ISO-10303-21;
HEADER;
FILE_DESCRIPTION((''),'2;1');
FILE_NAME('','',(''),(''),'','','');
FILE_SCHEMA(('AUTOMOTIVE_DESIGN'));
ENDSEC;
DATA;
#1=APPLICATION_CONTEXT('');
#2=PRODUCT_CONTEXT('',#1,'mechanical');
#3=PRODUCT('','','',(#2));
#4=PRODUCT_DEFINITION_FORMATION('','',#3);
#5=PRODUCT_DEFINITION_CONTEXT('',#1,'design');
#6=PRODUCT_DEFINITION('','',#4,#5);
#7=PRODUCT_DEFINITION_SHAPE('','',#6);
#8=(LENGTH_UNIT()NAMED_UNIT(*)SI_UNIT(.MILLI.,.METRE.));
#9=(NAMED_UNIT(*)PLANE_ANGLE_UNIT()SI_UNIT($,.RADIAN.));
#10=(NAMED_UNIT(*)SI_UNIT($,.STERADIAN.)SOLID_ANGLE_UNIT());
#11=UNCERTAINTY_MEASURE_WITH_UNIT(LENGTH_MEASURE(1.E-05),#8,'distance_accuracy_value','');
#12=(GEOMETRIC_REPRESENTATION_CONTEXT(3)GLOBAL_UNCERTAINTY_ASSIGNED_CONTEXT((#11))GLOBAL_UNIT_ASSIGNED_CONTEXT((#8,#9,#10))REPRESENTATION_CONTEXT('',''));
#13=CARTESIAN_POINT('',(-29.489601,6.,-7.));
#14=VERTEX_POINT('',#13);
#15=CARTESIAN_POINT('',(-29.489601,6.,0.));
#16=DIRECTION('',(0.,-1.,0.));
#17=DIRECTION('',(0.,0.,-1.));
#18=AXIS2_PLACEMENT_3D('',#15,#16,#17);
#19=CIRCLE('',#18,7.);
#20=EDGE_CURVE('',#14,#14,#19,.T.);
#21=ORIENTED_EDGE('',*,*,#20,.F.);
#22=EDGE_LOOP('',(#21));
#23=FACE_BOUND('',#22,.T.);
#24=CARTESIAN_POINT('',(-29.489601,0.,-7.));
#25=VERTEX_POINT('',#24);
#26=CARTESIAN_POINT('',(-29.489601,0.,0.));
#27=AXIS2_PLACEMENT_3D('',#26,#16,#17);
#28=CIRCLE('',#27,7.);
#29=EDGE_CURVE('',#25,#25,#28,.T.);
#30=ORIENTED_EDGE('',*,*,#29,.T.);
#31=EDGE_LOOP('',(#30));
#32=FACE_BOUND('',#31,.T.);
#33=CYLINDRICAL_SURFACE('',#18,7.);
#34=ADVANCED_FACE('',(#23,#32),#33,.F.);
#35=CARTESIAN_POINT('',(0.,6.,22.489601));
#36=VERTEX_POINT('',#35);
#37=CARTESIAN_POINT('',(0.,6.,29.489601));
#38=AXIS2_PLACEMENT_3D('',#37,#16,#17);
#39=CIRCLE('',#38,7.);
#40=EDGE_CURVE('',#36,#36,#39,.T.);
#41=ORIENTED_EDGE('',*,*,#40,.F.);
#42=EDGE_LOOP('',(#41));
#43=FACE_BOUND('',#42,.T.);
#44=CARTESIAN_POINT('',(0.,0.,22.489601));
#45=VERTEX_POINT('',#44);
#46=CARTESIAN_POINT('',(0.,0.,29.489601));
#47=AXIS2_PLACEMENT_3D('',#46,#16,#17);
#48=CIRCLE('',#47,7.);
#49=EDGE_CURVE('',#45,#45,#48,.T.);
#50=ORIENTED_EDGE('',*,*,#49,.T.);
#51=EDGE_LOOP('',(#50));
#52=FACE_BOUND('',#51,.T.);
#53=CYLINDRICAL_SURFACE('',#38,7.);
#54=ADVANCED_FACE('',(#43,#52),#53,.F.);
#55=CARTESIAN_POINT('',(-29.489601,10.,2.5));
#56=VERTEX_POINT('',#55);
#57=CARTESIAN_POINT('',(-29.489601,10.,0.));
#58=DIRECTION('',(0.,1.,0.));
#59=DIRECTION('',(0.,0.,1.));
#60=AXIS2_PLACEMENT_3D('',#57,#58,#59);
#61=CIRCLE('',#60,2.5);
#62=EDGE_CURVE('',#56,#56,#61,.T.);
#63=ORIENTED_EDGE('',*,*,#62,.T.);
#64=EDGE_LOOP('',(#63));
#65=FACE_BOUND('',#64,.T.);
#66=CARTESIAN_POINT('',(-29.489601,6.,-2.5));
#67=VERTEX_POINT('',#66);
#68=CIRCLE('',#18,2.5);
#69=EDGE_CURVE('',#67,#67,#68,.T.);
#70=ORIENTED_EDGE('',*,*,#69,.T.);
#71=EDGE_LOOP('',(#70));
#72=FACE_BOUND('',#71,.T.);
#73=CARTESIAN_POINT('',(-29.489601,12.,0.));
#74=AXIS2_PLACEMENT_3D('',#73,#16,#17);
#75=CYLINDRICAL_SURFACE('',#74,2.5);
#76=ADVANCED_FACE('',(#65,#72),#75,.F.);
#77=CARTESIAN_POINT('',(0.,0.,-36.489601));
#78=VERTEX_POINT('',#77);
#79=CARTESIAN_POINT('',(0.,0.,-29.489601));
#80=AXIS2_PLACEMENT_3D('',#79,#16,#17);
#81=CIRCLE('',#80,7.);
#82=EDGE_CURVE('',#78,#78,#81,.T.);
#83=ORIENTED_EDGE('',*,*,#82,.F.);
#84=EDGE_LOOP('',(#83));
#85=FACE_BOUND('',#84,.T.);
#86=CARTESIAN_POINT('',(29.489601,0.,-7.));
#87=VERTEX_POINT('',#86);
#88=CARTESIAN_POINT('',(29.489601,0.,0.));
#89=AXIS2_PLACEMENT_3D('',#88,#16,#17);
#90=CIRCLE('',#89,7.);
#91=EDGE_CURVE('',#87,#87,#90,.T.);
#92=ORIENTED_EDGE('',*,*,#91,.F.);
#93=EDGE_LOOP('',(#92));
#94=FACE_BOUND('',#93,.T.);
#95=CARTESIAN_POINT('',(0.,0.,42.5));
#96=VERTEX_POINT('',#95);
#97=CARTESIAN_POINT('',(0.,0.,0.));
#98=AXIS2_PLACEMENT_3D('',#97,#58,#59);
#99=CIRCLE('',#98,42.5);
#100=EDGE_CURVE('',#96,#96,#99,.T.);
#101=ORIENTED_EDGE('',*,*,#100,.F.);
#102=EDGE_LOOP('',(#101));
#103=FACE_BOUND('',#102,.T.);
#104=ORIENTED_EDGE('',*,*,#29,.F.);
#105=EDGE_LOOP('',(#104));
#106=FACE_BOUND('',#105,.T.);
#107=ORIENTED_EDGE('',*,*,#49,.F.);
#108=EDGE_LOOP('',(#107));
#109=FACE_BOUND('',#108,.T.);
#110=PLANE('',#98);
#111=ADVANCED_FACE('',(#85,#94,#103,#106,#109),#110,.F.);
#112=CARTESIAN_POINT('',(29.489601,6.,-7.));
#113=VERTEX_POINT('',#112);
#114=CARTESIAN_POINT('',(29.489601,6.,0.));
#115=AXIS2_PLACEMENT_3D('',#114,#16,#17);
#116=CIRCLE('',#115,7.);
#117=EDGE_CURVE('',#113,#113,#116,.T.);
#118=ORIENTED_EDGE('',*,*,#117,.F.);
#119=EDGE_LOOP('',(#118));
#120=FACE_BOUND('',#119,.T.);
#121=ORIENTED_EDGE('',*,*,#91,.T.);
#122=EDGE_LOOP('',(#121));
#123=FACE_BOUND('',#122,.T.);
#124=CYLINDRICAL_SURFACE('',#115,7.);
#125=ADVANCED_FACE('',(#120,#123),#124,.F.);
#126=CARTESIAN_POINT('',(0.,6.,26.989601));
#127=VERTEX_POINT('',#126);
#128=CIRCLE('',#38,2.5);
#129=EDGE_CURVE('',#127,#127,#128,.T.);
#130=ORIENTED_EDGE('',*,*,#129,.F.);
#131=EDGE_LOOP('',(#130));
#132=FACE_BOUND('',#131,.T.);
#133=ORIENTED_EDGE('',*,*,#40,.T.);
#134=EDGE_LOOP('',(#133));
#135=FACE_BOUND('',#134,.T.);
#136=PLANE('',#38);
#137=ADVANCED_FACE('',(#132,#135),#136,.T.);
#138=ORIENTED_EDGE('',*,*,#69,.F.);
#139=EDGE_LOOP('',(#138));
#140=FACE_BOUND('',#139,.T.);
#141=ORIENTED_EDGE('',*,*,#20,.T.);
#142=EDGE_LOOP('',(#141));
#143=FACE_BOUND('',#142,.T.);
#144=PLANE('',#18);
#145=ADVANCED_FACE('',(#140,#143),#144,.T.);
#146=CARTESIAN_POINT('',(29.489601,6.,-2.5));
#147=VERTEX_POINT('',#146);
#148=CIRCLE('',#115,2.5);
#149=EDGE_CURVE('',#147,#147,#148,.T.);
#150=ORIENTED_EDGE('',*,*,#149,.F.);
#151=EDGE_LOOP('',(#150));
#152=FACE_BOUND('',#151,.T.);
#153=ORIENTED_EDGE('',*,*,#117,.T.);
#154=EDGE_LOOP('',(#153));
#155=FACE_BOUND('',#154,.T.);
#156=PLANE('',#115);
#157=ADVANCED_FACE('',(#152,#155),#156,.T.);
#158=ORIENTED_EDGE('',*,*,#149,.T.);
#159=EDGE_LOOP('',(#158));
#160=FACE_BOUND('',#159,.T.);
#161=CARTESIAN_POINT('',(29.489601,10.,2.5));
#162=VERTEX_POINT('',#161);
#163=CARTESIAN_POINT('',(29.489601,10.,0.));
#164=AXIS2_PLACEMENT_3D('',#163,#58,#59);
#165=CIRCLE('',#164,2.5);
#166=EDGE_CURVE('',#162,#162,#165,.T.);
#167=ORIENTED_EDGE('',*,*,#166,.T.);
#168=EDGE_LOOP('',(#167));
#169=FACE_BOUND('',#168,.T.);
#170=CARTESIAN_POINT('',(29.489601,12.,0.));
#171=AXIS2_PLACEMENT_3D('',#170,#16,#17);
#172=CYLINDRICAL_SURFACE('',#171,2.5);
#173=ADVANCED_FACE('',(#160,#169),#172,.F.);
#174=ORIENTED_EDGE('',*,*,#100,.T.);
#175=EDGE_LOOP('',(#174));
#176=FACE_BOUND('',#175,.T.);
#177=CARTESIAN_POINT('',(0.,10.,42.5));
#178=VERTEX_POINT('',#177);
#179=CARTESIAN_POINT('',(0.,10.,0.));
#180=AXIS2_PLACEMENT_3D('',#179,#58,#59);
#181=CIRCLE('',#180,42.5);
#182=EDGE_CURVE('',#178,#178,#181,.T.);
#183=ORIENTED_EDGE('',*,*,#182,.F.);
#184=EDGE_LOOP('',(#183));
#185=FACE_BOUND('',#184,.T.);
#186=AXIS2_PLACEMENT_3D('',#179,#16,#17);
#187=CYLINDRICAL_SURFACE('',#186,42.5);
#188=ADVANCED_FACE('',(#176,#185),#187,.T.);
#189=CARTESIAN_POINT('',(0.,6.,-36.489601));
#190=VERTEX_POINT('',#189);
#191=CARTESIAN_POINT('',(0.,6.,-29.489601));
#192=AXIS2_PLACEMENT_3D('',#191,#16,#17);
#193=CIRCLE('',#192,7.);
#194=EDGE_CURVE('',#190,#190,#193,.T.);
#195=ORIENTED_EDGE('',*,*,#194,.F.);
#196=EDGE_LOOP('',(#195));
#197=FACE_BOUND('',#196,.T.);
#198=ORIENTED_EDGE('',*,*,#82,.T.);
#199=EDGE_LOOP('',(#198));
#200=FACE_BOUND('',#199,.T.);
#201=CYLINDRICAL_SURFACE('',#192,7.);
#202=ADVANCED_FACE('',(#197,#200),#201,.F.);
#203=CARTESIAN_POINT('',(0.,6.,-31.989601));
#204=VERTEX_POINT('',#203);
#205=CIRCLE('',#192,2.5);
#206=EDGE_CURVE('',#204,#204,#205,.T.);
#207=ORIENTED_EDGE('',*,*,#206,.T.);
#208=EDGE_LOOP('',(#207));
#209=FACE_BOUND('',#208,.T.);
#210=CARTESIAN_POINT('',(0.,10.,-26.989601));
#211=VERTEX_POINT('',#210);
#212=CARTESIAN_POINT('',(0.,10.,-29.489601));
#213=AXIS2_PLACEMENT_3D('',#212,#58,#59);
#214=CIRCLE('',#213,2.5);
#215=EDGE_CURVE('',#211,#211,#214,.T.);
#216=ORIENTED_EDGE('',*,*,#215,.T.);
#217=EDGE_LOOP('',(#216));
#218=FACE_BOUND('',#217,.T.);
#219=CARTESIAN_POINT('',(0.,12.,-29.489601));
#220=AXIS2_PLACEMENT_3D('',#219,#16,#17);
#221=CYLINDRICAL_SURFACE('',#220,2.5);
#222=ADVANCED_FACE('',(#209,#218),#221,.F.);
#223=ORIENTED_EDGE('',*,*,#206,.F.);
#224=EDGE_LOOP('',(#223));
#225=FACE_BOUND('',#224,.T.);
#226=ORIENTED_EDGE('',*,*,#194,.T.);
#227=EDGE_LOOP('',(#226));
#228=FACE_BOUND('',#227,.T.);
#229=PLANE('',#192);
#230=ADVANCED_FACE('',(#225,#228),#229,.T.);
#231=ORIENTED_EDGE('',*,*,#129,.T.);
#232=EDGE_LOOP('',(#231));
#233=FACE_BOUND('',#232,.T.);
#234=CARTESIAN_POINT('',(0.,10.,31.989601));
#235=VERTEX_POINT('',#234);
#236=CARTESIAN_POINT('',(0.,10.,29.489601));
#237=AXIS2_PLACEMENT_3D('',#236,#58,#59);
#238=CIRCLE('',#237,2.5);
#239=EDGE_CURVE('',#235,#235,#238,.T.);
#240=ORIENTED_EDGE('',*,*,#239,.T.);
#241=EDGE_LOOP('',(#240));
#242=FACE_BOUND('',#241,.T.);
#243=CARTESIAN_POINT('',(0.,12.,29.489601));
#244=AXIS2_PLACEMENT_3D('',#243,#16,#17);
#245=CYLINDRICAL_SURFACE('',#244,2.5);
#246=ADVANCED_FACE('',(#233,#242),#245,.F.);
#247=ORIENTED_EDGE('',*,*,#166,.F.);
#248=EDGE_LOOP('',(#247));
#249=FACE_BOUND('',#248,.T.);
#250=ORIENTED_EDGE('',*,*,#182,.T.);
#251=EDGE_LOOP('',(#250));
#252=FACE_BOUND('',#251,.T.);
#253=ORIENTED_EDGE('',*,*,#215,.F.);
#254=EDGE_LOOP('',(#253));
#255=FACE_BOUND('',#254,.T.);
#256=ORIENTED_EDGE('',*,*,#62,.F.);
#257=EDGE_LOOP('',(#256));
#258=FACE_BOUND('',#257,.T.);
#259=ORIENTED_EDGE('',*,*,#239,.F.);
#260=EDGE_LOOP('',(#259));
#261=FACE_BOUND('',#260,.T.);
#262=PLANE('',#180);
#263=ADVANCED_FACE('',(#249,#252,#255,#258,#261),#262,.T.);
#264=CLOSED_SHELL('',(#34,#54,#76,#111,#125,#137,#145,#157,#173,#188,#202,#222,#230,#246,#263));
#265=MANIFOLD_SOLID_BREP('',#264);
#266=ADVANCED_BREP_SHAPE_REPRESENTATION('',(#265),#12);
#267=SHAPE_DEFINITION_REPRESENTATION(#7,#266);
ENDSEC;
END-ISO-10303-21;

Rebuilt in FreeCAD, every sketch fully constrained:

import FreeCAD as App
import Part
import Sketcher
from FreeCAD import Vector
Q = App.Units.Quantity

doc = App.newDocument("Part")
body = doc.addObject("PartDesign::Body", "Body")

# Sketch on XZ plane
sketch1 = body.newObject("Sketcher::SketchObject", "Sketch")
sketch1.AttachmentSupport = (doc.getObject("XZ_Plane"), [""])
sketch1.MapMode = "FlatFace"
sketch1.addGeometry(Part.Circle(Vector(0, 0, 0), Vector(0, 0, 1), 42.5), False)
sketch1.addConstraint(Sketcher.Constraint("Coincident", 0, 3, -1, 1))
sketch1.addConstraint(Sketcher.Constraint("Diameter", 0, Q("85 mm")))
pad1 = body.newObject("PartDesign::Pad", "Pad")
pad1.Profile = sketch1
pad1.Length = 10
pad1.Reversed = True

# Sketch on XZ plane
sketch2 = body.newObject("Sketcher::SketchObject", "Sketch001")
sketch2.AttachmentSupport = (doc.getObject("XZ_Plane"), [""])
sketch2.MapMode = "FlatFace"
sketch2.addGeometry(Part.Circle(Vector(-29.489601, 0, 0), Vector(0, 0, 1), 7), False)
sketch2.addGeometry(Part.Circle(Vector(0, 29.489601, 0), Vector(0, 0, 1), 7), False)
sketch2.addGeometry(Part.Circle(Vector(29.489601, 0, 0), Vector(0, 0, 1), 7), False)
sketch2.addGeometry(Part.Circle(Vector(0, -29.489601, 0), Vector(0, 0, 1), 7), False)
sketch2.addConstraint(Sketcher.Constraint("Equal", 0, 1))
sketch2.addConstraint(Sketcher.Constraint("Equal", 1, 2))
sketch2.addConstraint(Sketcher.Constraint("Equal", 2, 3))
sketch2.addConstraint(Sketcher.Constraint("Symmetric", 0, 3, 2, 3, -1, 1))
sketch2.addConstraint(Sketcher.Constraint("Symmetric", 1, 3, 3, 3, -1, 1))
sketch2.addConstraint(Sketcher.Constraint("PointOnObject", 0, 3, -1))
sketch2.addConstraint(Sketcher.Constraint("PointOnObject", 1, 3, -2))
sketch2.addConstraint(Sketcher.Constraint("Diameter", 0, Q("14 mm")))
sketch2.addConstraint(Sketcher.Constraint("DistanceX", 0, 3, -1, 1, Q("29.489601 mm")))
sketch2.addConstraint(Sketcher.Constraint("DistanceY", -1, 1, 1, 3, Q("29.489601 mm")))
pocket1 = body.newObject("PartDesign::Pocket", "Pocket")
pocket1.Profile = sketch2
pocket1.Length = 6

# Sketch on XZ plane
sketch3 = body.newObject("Sketcher::SketchObject", "Sketch002")
sketch3.AttachmentSupport = (doc.getObject("XZ_Plane"), [""])
sketch3.MapMode = "FlatFace"
sketch3.AttachmentOffset = App.Placement(Vector(0, 0, -6), App.Rotation())
sketch3.addGeometry(Part.Circle(Vector(-29.489601, 0, 0), Vector(0, 0, 1), 2.5), False)
sketch3.addGeometry(Part.Circle(Vector(0, 29.489601, 0), Vector(0, 0, 1), 2.5), False)
sketch3.addGeometry(Part.Circle(Vector(29.489601, 0, 0), Vector(0, 0, 1), 2.5), False)
sketch3.addGeometry(Part.Circle(Vector(0, -29.489601, 0), Vector(0, 0, 1), 2.5), False)
sketch3.addConstraint(Sketcher.Constraint("Equal", 0, 1))
sketch3.addConstraint(Sketcher.Constraint("Equal", 1, 2))
sketch3.addConstraint(Sketcher.Constraint("Equal", 2, 3))
sketch3.addConstraint(Sketcher.Constraint("Symmetric", 0, 3, 2, 3, -1, 1))
sketch3.addConstraint(Sketcher.Constraint("Symmetric", 1, 3, 3, 3, -1, 1))
sketch3.addConstraint(Sketcher.Constraint("PointOnObject", 0, 3, -1))
sketch3.addConstraint(Sketcher.Constraint("PointOnObject", 1, 3, -2))
sketch3.addConstraint(Sketcher.Constraint("Diameter", 0, Q("5 mm")))
sketch3.addConstraint(Sketcher.Constraint("DistanceX", 0, 3, -1, 1, Q("29.489601 mm")))
sketch3.addConstraint(Sketcher.Constraint("DistanceY", -1, 1, 1, 3, Q("29.489601 mm")))
pocket2 = body.newObject("PartDesign::Pocket", "Pocket001")
pocket2.Profile = sketch3
pocket2.Length = 6

doc.recompute()
